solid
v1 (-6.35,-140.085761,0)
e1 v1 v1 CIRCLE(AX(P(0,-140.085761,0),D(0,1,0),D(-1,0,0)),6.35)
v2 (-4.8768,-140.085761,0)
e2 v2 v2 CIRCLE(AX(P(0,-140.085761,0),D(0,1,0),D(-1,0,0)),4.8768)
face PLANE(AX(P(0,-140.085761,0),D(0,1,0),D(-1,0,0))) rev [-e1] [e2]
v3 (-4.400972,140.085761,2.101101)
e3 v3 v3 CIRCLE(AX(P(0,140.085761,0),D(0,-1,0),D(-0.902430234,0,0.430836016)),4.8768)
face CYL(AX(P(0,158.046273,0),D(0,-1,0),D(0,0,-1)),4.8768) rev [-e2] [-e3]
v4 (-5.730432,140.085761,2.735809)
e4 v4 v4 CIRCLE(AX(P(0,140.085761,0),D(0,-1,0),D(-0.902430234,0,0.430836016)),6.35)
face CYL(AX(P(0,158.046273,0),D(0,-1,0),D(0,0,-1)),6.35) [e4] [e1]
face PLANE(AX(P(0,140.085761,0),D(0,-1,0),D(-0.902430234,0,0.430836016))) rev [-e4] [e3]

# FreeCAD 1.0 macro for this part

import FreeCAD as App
import Part
import Sketcher
from FreeCAD import Vector
Q = App.Units.Quantity

doc = App.newDocument("Part")
body = doc.addObject("PartDesign::Body", "Body")

# Sketch on XZ plane
sketch1 = body.newObject("Sketcher::SketchObject", "Sketch")
sketch1.AttachmentSupport = (doc.getObject("XZ_Plane"), [""])
sketch1.MapMode = "FlatFace"
sketch1.AttachmentOffset = App.Placement(Vector(0, 0, 140.085761), App.Rotation())
sketch1.addGeometry([
    Part.Circle(Vector(0, 0, 0), Vector(0, 0, 1), 6.35),
    Part.Circle(Vector(0, 0, 0), Vector(0, 0, 1), 4.8768),
], False)
sketch1.addConstraint([
    Sketcher.Constraint("Coincident", 0, 3, -1, 1),
    Sketcher.Constraint("Coincident", 1, 3, -1, 1),
    Sketcher.Constraint("Diameter", 0, Q("0.5 in")),
    Sketcher.Constraint("Diameter", 1, Q("0.384 in")),
])
pad1 = body.newObject("PartDesign::Pad", "Pad")
pad1.Profile = sketch1
pad1.Length = 280.171522
pad1.Reversed = True

doc.recompute()
